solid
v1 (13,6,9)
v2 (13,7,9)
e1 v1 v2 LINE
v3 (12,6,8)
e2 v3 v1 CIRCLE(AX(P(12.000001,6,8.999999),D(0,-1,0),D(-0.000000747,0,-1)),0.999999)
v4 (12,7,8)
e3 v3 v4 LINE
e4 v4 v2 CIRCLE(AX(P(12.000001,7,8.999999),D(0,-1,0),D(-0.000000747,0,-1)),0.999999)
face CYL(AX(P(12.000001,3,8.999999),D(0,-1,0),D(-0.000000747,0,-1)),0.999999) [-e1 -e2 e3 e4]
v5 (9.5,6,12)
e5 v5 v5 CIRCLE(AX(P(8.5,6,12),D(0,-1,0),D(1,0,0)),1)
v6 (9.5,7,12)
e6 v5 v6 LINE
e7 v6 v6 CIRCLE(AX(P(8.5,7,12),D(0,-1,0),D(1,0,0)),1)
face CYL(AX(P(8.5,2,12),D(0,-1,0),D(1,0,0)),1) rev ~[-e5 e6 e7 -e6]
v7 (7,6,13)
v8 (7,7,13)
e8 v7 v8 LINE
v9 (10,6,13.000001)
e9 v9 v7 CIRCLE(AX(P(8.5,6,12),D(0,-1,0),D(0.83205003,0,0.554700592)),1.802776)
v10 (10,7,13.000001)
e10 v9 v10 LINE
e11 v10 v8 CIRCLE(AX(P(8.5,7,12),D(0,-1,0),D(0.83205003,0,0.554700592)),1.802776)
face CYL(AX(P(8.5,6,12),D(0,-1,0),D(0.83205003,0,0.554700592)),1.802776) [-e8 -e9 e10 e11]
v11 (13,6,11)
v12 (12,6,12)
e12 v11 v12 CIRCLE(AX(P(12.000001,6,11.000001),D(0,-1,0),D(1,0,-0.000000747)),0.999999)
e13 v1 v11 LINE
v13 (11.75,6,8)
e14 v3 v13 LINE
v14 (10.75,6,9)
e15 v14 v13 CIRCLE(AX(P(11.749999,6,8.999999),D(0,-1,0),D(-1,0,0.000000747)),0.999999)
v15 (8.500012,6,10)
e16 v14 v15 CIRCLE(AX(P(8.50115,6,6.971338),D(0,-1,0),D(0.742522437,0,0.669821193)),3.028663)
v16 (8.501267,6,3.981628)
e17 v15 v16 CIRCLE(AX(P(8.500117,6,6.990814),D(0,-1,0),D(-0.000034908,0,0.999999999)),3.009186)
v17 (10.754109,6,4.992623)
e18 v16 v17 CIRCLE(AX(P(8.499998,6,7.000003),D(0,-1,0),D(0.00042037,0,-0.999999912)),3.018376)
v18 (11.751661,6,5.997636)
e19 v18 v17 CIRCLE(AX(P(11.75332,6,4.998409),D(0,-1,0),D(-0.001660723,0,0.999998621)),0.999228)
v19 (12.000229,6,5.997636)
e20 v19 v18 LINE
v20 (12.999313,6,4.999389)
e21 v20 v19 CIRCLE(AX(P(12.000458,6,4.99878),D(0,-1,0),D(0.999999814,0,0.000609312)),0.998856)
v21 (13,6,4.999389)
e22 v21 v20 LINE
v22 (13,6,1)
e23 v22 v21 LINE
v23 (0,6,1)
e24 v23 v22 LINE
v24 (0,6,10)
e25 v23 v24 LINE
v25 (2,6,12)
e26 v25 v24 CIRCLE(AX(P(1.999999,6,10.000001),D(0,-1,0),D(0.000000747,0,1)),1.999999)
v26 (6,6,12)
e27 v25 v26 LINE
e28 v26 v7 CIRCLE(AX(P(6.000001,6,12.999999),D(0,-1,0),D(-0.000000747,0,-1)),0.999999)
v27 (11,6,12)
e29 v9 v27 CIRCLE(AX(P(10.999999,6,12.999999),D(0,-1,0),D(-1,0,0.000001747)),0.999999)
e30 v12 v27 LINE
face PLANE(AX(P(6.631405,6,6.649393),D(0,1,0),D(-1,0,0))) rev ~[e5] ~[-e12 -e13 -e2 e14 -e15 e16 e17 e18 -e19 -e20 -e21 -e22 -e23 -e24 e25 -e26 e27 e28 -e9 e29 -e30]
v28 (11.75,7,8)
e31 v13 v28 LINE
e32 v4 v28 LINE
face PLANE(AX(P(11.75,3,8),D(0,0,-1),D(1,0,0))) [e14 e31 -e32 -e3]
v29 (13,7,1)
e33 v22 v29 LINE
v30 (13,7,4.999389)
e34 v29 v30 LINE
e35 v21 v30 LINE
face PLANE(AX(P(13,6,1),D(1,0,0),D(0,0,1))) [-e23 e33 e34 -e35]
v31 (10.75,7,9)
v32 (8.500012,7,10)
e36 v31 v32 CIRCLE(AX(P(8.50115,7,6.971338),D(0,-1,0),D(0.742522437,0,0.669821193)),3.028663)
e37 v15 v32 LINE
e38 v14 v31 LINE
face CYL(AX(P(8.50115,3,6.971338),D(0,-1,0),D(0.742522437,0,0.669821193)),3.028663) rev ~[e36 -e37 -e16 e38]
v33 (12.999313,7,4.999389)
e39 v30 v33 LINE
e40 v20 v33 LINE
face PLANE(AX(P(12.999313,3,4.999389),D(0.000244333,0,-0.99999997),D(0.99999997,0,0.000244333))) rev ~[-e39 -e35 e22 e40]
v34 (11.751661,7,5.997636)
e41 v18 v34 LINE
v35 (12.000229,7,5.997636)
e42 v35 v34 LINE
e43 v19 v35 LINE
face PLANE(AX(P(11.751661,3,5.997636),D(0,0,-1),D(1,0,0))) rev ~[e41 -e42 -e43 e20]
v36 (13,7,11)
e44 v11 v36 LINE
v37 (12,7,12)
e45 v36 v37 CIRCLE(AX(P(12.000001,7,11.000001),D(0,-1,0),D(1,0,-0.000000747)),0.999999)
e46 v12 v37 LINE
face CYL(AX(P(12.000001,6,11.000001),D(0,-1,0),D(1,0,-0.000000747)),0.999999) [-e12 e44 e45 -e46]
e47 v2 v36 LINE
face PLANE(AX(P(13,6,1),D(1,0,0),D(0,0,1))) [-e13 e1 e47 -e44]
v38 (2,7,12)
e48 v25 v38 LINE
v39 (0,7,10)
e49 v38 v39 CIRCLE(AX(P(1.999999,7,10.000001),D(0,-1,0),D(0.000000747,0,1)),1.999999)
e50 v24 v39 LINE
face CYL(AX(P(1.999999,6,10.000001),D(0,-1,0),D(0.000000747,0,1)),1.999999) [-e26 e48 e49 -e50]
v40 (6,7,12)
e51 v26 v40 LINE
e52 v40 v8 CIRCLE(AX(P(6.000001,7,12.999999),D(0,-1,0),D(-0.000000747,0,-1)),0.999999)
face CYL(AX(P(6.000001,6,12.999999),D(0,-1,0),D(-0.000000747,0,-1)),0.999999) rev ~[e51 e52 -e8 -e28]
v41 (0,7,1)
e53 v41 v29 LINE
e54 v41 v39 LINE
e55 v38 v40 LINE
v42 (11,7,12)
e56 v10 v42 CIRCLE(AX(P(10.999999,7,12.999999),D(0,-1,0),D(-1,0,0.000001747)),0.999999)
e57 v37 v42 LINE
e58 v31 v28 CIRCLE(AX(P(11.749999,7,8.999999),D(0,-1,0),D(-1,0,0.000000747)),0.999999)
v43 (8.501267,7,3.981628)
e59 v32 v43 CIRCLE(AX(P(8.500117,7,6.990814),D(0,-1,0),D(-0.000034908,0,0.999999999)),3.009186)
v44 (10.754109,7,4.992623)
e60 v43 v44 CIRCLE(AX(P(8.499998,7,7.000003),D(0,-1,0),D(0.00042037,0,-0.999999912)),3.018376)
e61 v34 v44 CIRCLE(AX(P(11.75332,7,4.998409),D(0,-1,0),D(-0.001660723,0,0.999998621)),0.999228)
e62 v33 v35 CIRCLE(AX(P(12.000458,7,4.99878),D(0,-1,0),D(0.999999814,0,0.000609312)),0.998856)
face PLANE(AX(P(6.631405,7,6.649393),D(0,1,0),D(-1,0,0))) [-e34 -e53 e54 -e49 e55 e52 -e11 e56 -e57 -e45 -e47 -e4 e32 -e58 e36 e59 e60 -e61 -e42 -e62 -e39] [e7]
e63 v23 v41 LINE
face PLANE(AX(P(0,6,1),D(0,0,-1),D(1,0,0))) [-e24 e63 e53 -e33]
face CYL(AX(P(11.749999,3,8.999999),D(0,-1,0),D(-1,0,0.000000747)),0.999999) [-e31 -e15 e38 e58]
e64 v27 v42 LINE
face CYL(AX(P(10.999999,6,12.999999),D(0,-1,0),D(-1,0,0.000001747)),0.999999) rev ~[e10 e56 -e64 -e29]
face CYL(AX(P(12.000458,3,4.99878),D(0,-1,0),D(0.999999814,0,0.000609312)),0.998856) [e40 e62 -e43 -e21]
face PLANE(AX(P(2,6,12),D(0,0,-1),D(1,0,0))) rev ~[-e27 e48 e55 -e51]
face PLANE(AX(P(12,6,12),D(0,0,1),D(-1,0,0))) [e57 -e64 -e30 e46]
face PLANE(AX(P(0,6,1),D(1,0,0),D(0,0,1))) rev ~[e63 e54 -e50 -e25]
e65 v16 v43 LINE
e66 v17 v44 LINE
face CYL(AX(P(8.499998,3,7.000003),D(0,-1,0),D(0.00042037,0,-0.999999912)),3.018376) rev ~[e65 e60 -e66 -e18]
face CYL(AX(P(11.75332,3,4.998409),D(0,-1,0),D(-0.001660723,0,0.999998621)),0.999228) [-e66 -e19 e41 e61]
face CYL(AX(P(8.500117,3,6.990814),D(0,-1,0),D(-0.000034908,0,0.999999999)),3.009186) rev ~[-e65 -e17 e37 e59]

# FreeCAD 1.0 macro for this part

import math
import FreeCAD as App
import Part
import Sketcher
from FreeCAD import Vector

doc = App.newDocument("Part")
body = doc.addObject("PartDesign::Body", "Body")

# Sketch on XY plane
sketch1 = body.newObject("Sketcher::SketchObject", "Sketch")
sketch1.AttachmentSupport = (doc.getObject("XY_Plane"), [""])
sketch1.MapMode = "FlatFace"
sketch1.addGeometry(Part.ArcOfCircle(Part.Circle(Vector(8.500117, 6.990814, 0), Vector(0, 0, 1), 3.009186), math.radians(90.002), math.radians(270.021895)), False)
sketch1.addGeometry(Part.ArcOfCircle(Part.Circle(Vector(8.499998, 7.000003, 0), Vector(0, 0, 1), 3.018376), math.radians(-89.975915), math.radians(-41.686407)), False)
sketch1.addGeometry(Part.ArcOfCircle(Part.Circle(Vector(11.75332, 4.998409, 0), Vector(0, 0, 1), 0.999228), math.radians(90.095152), math.radians(180.331782)), False)
sketch1.addGeometry(Part.LineSegment(Vector(11.751661, 5.997636, 0), Vector(12.000229, 5.997636, 0)), False)
sketch1.addGeometry(Part.ArcOfCircle(Part.Circle(Vector(12.000458, 4.99878, 0), Vector(0, 0, 1), 0.998856), math.radians(0.034911), math.radians(90.01311)), False)
sketch1.addGeometry(Part.LineSegment(Vector(12.999313, 4.999389, 0), Vector(15.5, 5, 0)), False)
sketch1.addGeometry(Part.LineSegment(Vector(15.5, 5, 0), Vector(15.5, 9, 0)), False)
sketch1.addGeometry(Part.LineSegment(Vector(15.5, 9, 0), Vector(13, 9, 0)), False)
sketch1.addGeometry(Part.ArcOfCircle(Part.Circle(Vector(12.000001, 8.999999, 0), Vector(0, 0, 1), 0.999999), math.radians(-90.000043), math.radians(0.000043)), False)
sketch1.addGeometry(Part.LineSegment(Vector(12, 8, 0), Vector(11.75, 8, 0)), False)
sketch1.addGeometry(Part.ArcOfCircle(Part.Circle(Vector(11.749999, 8.999999, 0), Vector(0, 0, 1), 0.999999), math.radians(179.999957), math.radians(270.000043)), False)
sketch1.addGeometry(Part.ArcOfCircle(Part.Circle(Vector(8.50115, 6.971338, 0), Vector(0, 0, 1), 3.028663), math.radians(42.053266), math.radians(90.021529)), False)
sketch1.addConstraint(Sketcher.Constraint("Coincident", 0, 2, 1, 1))
sketch1.addConstraint(Sketcher.Constraint("Coincident", 1, 2, 2, 2))
sketch1.addConstraint(Sketcher.Constraint("Coincident", 2, 1, 3, 1))
sketch1.addConstraint(Sketcher.Constraint("Coincident", 3, 2, 4, 2))
sketch1.addConstraint(Sketcher.Constraint("Coincident", 4, 1, 5, 1))
sketch1.addConstraint(Sketcher.Constraint("Coincident", 5, 2, 6, 1))
sketch1.addConstraint(Sketcher.Constraint("Coincident", 6, 2, 7, 1))
sketch1.addConstraint(Sketcher.Constraint("Coincident", 7, 2, 8, 2))
sketch1.addConstraint(Sketcher.Constraint("Tangent", 8, 1, 9, 1))
sketch1.addConstraint(Sketcher.Constraint("Tangent", 9, 2, 10, 2))
sketch1.addConstraint(Sketcher.Constraint("Coincident", 10, 1, 11, 1))
sketch1.addConstraint(Sketcher.Constraint("Coincident", 11, 2, 0, 1))
sketch1.addConstraint(Sketcher.Constraint("Horizontal", 3))
sketch1.addConstraint(Sketcher.Constraint("Vertical", 6))
sketch1.addConstraint(Sketcher.Constraint("Horizontal", 7))
sketch1.addConstraint(Sketcher.Constraint("Horizontal", 9))
sketch1.addConstraint(Sketcher.Constraint("Equal", 8, 10))
sketch1.addConstraint(Sketcher.Constraint("Horizontal", 10, 3, 6, 2))
sketch1.addConstraint(Sketcher.Constraint("Horizontal", 7, 2, 10, 1))
sketch1.addConstraint(Sketcher.Constraint("Radius", 8, 0.999999))
sketch1.addConstraint(Sketcher.Constraint("DistanceY", 6, 1, 6, 2, 4.0))
sketch1.addConstraint(Sketcher.Constraint("DistanceX", 7, 2, 7, 1, 2.5))
sketch1.addConstraint(Sketcher.Constraint("DistanceX", -1, 1, 8, 3, 12.000001))
sketch1.addConstraint(Sketcher.Constraint("DistanceY", -1, 1, 8, 3, 8.999999))
sketch1.addConstraint(Sketcher.Constraint("DistanceY", -1, 1, 11, 2, 10.0))
sketch1.addConstraint(Sketcher.Constraint("DistanceX", 9, 2, 9, 1, 0.25))
sketch1.addConstraint(Sketcher.Constraint("DistanceX", -1, 1, 1, 3, 8.499998))
sketch1.addConstraint(Sketcher.Constraint("Radius", 2, 0.999228))
sketch1.addConstraint(Sketcher.Constraint("Radius", 0, 3.009186))
sketch1.addConstraint(Sketcher.Constraint("Radius", 1, 3.018376))
sketch1.addConstraint(Sketcher.Constraint("Radius", 4, 0.998856))
sketch1.addConstraint(Sketcher.Constraint("Radius", 11, 3.028663))
sketch1.addConstraint(Sketcher.Constraint("DistanceX", 3, 1, 3, 2, 0.248568))
sketch1.addConstraint(Sketcher.Constraint("DistanceX", -1, 1, 2, 3, 11.75332))
sketch1.addConstraint(Sketcher.Constraint("DistanceY", -1, 1, 2, 3, 4.998409))
sketch1.addConstraint(Sketcher.Constraint("DistanceX", -1, 1, 2, 1, 11.751661))
sketch1.addConstraint(Sketcher.Constraint("DistanceY", -1, 1, 4, 1, 4.999389))
sketch1.addConstraint(Sketcher.Constraint("DistanceX", -1, 1, 11, 2, 8.500012))
sketch1.addConstraint(Sketcher.Constraint("DistanceX", 1, 3, 0, 3, 0.000119))
sketch1.addConstraint(Sketcher.Constraint("DistanceX", 0, 3, 4, 3, 3.500341))
sketch1.addConstraint(Sketcher.Constraint("DistanceX", 0, 3, 0, 2, 0.00115))
pad1 = body.newObject("PartDesign::Pad", "Pad")
pad1.Profile = sketch1
pad1.Length = 5
pad1.Reversed = True
body2 = doc.addObject("PartDesign::Body", "Body001")
doc.recompute()

body.Placement = App.Placement(Vector(0, 0, 0), App.Rotation(Vector(1, 0, 0), 90))
boolean = body2.newObject("PartDesign::Boolean", "Boolean")
boolean.Type = "Fuse"
boolean.addObjects([body])
body3 = doc.addObject("PartDesign::Body", "Body002")
doc.recompute()

body2.Placement = App.Placement(Vector(0, 3, 0), App.Rotation(Vector(0, 0, 1), 0))
boolean2 = body3.newObject("PartDesign::Boolean", "Boolean001")
boolean2.Type = "Fuse"
boolean2.addObjects([body2])
body4 = doc.addObject("PartDesign::Body", "Body003")

# Sketch on XY plane
sketch2 = body4.newObject("Sketcher::SketchObject", "Sketch001")
sketch2.AttachmentSupport = (doc.getObject("XY_Plane003"), [""])
sketch2.MapMode = "FlatFace"
sketch2.addGeometry(Part.Circle(Vector(8.5, 12, 0), Vector(0, 0, 1), 1), False)
sketch2.addConstraint(Sketcher.Constraint("Diameter", 0, 2.0))
sketch2.addConstraint(Sketcher.Constraint("DistanceY", -1, 1, 0, 3, 12.0))
sketch2.addConstraint(Sketcher.Constraint("DistanceX", -1, 1, 0, 3, 8.5))
pad2 = body4.newObject("PartDesign::Pad", "Pad001")
pad2.Profile = sketch2
pad2.Length = 10
pad2.Reversed = True
body5 = doc.addObject("PartDesign::Body", "Body004")
doc.recompute()

body4.Placement = App.Placement(Vector(0, 0, 0), App.Rotation(Vector(1, 0, 0), 90))
boolean3 = body5.newObject("PartDesign::Boolean", "Boolean002")
boolean3.Type = "Fuse"
boolean3.addObjects([body4])
body6 = doc.addObject("PartDesign::Body", "Body005")
doc.recompute()

body5.Placement = App.Placement(Vector(0, 4, 0), App.Rotation(Vector(0, 0, 1), 0))
boolean4 = body6.newObject("PartDesign::Boolean", "Boolean003")
boolean4.Type = "Fuse"
boolean4.addObjects([body5])
body7 = doc.addObject("PartDesign::Body", "Body006")
doc.recompute()

body6.Placement = App.Placement(Vector(0, -2, 0), App.Rotation(Vector(0, 0, 1), 0))
boolean5 = body7.newObject("PartDesign::Boolean", "Boolean004")
boolean5.Type = "Fuse"
boolean5.addObjects([body6])
body8 = doc.addObject("PartDesign::Body", "Body007")

# Sketch on XY plane
sketch3 = body8.newObject("Sketcher::SketchObject", "Sketch002")
sketch3.AttachmentSupport = (doc.getObject("XY_Plane007"), [""])
sketch3.MapMode = "FlatFace"
sketch3.addGeometry(Part.LineSegment(Vector(0, 10, 0), Vector(0, 1, 0)), False)
sketch3.addGeometry(Part.LineSegment(Vector(0, 1, 0), Vector(13, 1, 0)), False)
sketch3.addGeometry(Part.LineSegment(Vector(13, 1, 0), Vector(13, 11, 0)), False)
sketch3.addGeometry(Part.ArcOfCircle(Part.Circle(Vector(12.000001, 11.000001, 0), Vector(0, 0, 1), 0.999999), math.radians(-0.000043), math.radians(90.000043)), False)
sketch3.addGeometry(Part.LineSegment(Vector(12, 12, 0), Vector(11, 12, 0)), False)
sketch3.addGeometry(Part.ArcOfCircle(Part.Circle(Vector(10.999999, 12.999999, 0), Vector(0, 0, 1), 0.999999), math.radians(179.9999), math.radians(270.000043)), False)
sketch3.addGeometry(Part.ArcOfCircle(Part.Circle(Vector(8.5, 12, 0), Vector(0, 0, 1), 1.802776), math.radians(33.690095), math.radians(146.309943)), False)
sketch3.addGeometry(Part.ArcOfCircle(Part.Circle(Vector(6.000001, 12.999999, 0), Vector(0, 0, 1), 0.999999), math.radians(-90.000043), math.radians(0.000043)), False)
sketch3.addGeometry(Part.LineSegment(Vector(6, 12, 0), Vector(2, 12, 0)), False)
sketch3.addGeometry(Part.ArcOfCircle(Part.Circle(Vector(1.999999, 10.000001, 0), Vector(0, 0, 1), 1.999999), math.radians(89.999957), math.radians(180.000043)), False)
sketch3.addConstraint(Sketcher.Constraint("Coincident", 0, 2, 1, 1))
sketch3.addConstraint(Sketcher.Constraint("Coincident", 1, 2, 2, 1))
sketch3.addConstraint(Sketcher.Constraint("Tangent", 2, 2, 3, 1))
sketch3.addConstraint(Sketcher.Constraint("Tangent", 3, 2, 4, 1))
sketch3.addConstraint(Sketcher.Constraint("Tangent", 4, 2, 5, 2))
sketch3.addConstraint(Sketcher.Constraint("Coincident", 5, 1, 6, 1))
sketch3.addConstraint(Sketcher.Constraint("Coincident", 6, 2, 7, 2))
sketch3.addConstraint(Sketcher.Constraint("Tangent", 7, 1, 8, 1))
sketch3.addConstraint(Sketcher.Constraint("Tangent", 8, 2, 9, 1))
sketch3.addConstraint(Sketcher.Constraint("Tangent", 9, 2, 0, 1))
sketch3.addConstraint(Sketcher.Constraint("Vertical", 0))
sketch3.addConstraint(Sketcher.Constraint("Horizontal", 1))
sketch3.addConstraint(Sketcher.Constraint("Vertical", 2))
sketch3.addConstraint(Sketcher.Constraint("Horizontal", 4))
sketch3.addConstraint(Sketcher.Constraint("Horizontal", 8))
sketch3.addConstraint(Sketcher.Constraint("Equal", 3, 5))
sketch3.addConstraint(Sketcher.Constraint("Equal", 5, 7))
sketch3.addConstraint(Sketcher.Constraint("PointOnObject", 0, 2, -2))
sketch3.addConstraint(Sketcher.Constraint("Horizontal", 5, 3, 7, 3))
sketch3.addConstraint(Sketcher.Constraint("Horizontal", 6, 3, 3, 2))
sketch3.addConstraint(Sketcher.Constraint("Horizontal", 7, 3, 5, 1))
sketch3.addConstraint(Sketcher.Constraint("Horizontal", 5, 1, 6, 2))
sketch3.addConstraint(Sketcher.Constraint("Radius", 3, 0.999999))
sketch3.addConstraint(Sketcher.Constraint("Radius", 9, 1.999999))
sketch3.addConstraint(Sketcher.Constraint("DistanceX", 1, 1, 1, 2, 13.0))
sketch3.addConstraint(Sketcher.Constraint("DistanceX", 4, 2, 4, 1, 1.0))
sketch3.addConstraint(Sketcher.Constraint("DistanceX", 8, 2, 8, 1, 4.0))
sketch3.addConstraint(Sketcher.Constraint("DistanceY", 0, 2, 0, 1, 9.0))
sketch3.addConstraint(Sketcher.Constraint("DistanceY", -1, 1, 3, 3, 11.000001))
pad3 = body8.newObject("PartDesign::Pad", "Pad002")
pad3.Profile = sketch3
pad3.Length = 1
pad3.Reversed = True
body9 = doc.addObject("PartDesign::Body", "Body008")
doc.recompute()

body8.Placement = App.Placement(Vector(0, 0, 0), App.Rotation(Vector(1, 0, 0), 90))
boolean6 = body9.newObject("PartDesign::Boolean", "Boolean005")
boolean6.Type = "Fuse"
boolean6.addObjects([body8])
body10 = doc.addObject("PartDesign::Body", "Body009")
doc.recompute()

body9.Placement = App.Placement(Vector(0, 6, 0), App.Rotation(Vector(0, 0, 1), 0))
boolean7 = body10.newObject("PartDesign::Boolean", "Boolean006")
boolean7.Type = "Fuse"
boolean7.addObjects([body9])
doc.recompute()

boolean8 = body10.newObject("PartDesign::Boolean", "Boolean007")
boolean8.Type = "Cut"
boolean8.addObjects([body7])
doc.recompute()

boolean9 = body10.newObject("PartDesign::Boolean", "Boolean008")
boolean9.Type = "Cut"
boolean9.addObjects([body3])

doc.recompute()
